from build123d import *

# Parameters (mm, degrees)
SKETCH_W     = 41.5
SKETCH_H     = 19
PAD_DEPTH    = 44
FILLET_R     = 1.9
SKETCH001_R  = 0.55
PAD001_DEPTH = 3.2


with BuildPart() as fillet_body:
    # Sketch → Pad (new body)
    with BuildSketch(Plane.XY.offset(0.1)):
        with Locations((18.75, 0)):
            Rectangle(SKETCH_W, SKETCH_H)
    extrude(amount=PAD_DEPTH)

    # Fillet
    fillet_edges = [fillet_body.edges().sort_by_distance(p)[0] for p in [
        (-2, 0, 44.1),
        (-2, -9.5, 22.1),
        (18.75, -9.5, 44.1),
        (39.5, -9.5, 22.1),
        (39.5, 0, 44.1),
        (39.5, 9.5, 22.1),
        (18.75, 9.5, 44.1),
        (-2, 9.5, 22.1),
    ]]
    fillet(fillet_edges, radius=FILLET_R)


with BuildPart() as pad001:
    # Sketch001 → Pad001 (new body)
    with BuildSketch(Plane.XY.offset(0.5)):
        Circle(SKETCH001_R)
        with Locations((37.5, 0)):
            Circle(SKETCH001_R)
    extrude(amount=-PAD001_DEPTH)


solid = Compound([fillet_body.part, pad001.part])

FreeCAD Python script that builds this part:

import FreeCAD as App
import Part
import Sketcher
from FreeCAD import Vector
Q = App.Units.Quantity


def edges_at(feature, points):
    """Names of the edges that pass closest to the given points."""
    edges = feature.Shape.Edges
    near = lambda p: min(range(len(edges)), key=lambda i: edges[i].distToShape(Part.Vertex(*p))[0])
    return sorted({f"Edge{near(p) + 1}" for p in points})


def add_polygon(sketch, points):
    """Adds a closed chain of lines whose ends are joined by coincident constraints."""
    first, n = sketch.GeometryCount, len(points)
    for a, b in zip(points, points[1:] + points[:1]):
        sketch.addGeometry(Part.LineSegment(App.Vector(*a, 0), App.Vector(*b, 0)), False)
    for i in range(n):
        sketch.addConstraint(Sketcher.Constraint("Coincident", first + i, 2, first + (i + 1) % n, 1))

doc = App.newDocument("Part")
body = doc.addObject("PartDesign::Body", "Body")

# Sketch on XY plane
sketch1 = body.newObject("Sketcher::SketchObject", "Sketch")
sketch1.AttachmentSupport = (doc.getObject("XY_Plane"), [""])
sketch1.MapMode = "FlatFace"
sketch1.AttachmentOffset = App.Placement(Vector(0, 0, 0.1), App.Rotation())
add_polygon(sketch1, [(-2, 10), (-2, -10), (40, -10), (40, 10)])  # lines 0-3
sketch1.addConstraint([
    Sketcher.Constraint("Vertical", 0),
    Sketcher.Constraint("Horizontal", 1),
    Sketcher.Constraint("Vertical", 2),
    Sketcher.Constraint("Horizontal", 3),
    Sketcher.Constraint("DistanceY", 0, 2, 0, 1, Q("19 mm")),
    Sketcher.Constraint("DistanceX", 1, 1, 1, 2, Q("41.5 mm")),
    Sketcher.Constraint("DistanceX", 0, 2, -1, 1, Q("2 mm")),
    Sketcher.Constraint("DistanceY", 0, 2, -1, 1, Q("9.5 mm")),
])
pad1 = body.newObject("PartDesign::Pad", "Pad")
pad1.Profile = sketch1
pad1.Length = 44
doc.recompute()

fillet = body.newObject("PartDesign::Fillet", "Fillet")
fillet.Base = (pad1, edges_at(pad1, [
    (-2, 0, 44.1),
    (-2, -9.5, 22.1),
    (18.75, -9.5, 44.1),
    (39.5, -9.5, 22.1),
    (39.5, 0, 44.1),
    (39.5, 9.5, 22.1),
    (18.75, 9.5, 44.1),
    (-2, 9.5, 22.1),
]))
fillet.Radius = 1.9
body2 = doc.addObject("PartDesign::Body", "Body001")
body2.AllowCompound = True

# Sketch on XY plane
sketch2 = body2.newObject("Sketcher::SketchObject", "Sketch001")
sketch2.AttachmentSupport = (doc.getObject("XY_Plane001"), [""])
sketch2.MapMode = "FlatFace"
sketch2.AttachmentOffset = App.Placement(Vector(0, 0, 0.5), App.Rotation())
sketch2.addGeometry([
    Part.Circle(Vector(0, 0, 0), Vector(0, 0, 1), 0.6),
    Part.Circle(Vector(37.5, 0, 0), Vector(0, 0, 1), 0.6),
], False)
sketch2.addConstraint([
    Sketcher.Constraint("Coincident", 0, 3, -1, 1),
    Sketcher.Constraint("Equal", 0, 1),
    Sketcher.Constraint("PointOnObject", 1, 3, -1),
    Sketcher.Constraint("Diameter", 0, Q("1.1 mm")),
    Sketcher.Constraint("DistanceX", -1, 1, 1, 3, Q("37.5 mm")),
])
pad2 = body2.newObject("PartDesign::Pad", "Pad001")
pad2.Profile = sketch2
pad2.Length = 3.2
pad2.Reversed = True

doc.recompute()
